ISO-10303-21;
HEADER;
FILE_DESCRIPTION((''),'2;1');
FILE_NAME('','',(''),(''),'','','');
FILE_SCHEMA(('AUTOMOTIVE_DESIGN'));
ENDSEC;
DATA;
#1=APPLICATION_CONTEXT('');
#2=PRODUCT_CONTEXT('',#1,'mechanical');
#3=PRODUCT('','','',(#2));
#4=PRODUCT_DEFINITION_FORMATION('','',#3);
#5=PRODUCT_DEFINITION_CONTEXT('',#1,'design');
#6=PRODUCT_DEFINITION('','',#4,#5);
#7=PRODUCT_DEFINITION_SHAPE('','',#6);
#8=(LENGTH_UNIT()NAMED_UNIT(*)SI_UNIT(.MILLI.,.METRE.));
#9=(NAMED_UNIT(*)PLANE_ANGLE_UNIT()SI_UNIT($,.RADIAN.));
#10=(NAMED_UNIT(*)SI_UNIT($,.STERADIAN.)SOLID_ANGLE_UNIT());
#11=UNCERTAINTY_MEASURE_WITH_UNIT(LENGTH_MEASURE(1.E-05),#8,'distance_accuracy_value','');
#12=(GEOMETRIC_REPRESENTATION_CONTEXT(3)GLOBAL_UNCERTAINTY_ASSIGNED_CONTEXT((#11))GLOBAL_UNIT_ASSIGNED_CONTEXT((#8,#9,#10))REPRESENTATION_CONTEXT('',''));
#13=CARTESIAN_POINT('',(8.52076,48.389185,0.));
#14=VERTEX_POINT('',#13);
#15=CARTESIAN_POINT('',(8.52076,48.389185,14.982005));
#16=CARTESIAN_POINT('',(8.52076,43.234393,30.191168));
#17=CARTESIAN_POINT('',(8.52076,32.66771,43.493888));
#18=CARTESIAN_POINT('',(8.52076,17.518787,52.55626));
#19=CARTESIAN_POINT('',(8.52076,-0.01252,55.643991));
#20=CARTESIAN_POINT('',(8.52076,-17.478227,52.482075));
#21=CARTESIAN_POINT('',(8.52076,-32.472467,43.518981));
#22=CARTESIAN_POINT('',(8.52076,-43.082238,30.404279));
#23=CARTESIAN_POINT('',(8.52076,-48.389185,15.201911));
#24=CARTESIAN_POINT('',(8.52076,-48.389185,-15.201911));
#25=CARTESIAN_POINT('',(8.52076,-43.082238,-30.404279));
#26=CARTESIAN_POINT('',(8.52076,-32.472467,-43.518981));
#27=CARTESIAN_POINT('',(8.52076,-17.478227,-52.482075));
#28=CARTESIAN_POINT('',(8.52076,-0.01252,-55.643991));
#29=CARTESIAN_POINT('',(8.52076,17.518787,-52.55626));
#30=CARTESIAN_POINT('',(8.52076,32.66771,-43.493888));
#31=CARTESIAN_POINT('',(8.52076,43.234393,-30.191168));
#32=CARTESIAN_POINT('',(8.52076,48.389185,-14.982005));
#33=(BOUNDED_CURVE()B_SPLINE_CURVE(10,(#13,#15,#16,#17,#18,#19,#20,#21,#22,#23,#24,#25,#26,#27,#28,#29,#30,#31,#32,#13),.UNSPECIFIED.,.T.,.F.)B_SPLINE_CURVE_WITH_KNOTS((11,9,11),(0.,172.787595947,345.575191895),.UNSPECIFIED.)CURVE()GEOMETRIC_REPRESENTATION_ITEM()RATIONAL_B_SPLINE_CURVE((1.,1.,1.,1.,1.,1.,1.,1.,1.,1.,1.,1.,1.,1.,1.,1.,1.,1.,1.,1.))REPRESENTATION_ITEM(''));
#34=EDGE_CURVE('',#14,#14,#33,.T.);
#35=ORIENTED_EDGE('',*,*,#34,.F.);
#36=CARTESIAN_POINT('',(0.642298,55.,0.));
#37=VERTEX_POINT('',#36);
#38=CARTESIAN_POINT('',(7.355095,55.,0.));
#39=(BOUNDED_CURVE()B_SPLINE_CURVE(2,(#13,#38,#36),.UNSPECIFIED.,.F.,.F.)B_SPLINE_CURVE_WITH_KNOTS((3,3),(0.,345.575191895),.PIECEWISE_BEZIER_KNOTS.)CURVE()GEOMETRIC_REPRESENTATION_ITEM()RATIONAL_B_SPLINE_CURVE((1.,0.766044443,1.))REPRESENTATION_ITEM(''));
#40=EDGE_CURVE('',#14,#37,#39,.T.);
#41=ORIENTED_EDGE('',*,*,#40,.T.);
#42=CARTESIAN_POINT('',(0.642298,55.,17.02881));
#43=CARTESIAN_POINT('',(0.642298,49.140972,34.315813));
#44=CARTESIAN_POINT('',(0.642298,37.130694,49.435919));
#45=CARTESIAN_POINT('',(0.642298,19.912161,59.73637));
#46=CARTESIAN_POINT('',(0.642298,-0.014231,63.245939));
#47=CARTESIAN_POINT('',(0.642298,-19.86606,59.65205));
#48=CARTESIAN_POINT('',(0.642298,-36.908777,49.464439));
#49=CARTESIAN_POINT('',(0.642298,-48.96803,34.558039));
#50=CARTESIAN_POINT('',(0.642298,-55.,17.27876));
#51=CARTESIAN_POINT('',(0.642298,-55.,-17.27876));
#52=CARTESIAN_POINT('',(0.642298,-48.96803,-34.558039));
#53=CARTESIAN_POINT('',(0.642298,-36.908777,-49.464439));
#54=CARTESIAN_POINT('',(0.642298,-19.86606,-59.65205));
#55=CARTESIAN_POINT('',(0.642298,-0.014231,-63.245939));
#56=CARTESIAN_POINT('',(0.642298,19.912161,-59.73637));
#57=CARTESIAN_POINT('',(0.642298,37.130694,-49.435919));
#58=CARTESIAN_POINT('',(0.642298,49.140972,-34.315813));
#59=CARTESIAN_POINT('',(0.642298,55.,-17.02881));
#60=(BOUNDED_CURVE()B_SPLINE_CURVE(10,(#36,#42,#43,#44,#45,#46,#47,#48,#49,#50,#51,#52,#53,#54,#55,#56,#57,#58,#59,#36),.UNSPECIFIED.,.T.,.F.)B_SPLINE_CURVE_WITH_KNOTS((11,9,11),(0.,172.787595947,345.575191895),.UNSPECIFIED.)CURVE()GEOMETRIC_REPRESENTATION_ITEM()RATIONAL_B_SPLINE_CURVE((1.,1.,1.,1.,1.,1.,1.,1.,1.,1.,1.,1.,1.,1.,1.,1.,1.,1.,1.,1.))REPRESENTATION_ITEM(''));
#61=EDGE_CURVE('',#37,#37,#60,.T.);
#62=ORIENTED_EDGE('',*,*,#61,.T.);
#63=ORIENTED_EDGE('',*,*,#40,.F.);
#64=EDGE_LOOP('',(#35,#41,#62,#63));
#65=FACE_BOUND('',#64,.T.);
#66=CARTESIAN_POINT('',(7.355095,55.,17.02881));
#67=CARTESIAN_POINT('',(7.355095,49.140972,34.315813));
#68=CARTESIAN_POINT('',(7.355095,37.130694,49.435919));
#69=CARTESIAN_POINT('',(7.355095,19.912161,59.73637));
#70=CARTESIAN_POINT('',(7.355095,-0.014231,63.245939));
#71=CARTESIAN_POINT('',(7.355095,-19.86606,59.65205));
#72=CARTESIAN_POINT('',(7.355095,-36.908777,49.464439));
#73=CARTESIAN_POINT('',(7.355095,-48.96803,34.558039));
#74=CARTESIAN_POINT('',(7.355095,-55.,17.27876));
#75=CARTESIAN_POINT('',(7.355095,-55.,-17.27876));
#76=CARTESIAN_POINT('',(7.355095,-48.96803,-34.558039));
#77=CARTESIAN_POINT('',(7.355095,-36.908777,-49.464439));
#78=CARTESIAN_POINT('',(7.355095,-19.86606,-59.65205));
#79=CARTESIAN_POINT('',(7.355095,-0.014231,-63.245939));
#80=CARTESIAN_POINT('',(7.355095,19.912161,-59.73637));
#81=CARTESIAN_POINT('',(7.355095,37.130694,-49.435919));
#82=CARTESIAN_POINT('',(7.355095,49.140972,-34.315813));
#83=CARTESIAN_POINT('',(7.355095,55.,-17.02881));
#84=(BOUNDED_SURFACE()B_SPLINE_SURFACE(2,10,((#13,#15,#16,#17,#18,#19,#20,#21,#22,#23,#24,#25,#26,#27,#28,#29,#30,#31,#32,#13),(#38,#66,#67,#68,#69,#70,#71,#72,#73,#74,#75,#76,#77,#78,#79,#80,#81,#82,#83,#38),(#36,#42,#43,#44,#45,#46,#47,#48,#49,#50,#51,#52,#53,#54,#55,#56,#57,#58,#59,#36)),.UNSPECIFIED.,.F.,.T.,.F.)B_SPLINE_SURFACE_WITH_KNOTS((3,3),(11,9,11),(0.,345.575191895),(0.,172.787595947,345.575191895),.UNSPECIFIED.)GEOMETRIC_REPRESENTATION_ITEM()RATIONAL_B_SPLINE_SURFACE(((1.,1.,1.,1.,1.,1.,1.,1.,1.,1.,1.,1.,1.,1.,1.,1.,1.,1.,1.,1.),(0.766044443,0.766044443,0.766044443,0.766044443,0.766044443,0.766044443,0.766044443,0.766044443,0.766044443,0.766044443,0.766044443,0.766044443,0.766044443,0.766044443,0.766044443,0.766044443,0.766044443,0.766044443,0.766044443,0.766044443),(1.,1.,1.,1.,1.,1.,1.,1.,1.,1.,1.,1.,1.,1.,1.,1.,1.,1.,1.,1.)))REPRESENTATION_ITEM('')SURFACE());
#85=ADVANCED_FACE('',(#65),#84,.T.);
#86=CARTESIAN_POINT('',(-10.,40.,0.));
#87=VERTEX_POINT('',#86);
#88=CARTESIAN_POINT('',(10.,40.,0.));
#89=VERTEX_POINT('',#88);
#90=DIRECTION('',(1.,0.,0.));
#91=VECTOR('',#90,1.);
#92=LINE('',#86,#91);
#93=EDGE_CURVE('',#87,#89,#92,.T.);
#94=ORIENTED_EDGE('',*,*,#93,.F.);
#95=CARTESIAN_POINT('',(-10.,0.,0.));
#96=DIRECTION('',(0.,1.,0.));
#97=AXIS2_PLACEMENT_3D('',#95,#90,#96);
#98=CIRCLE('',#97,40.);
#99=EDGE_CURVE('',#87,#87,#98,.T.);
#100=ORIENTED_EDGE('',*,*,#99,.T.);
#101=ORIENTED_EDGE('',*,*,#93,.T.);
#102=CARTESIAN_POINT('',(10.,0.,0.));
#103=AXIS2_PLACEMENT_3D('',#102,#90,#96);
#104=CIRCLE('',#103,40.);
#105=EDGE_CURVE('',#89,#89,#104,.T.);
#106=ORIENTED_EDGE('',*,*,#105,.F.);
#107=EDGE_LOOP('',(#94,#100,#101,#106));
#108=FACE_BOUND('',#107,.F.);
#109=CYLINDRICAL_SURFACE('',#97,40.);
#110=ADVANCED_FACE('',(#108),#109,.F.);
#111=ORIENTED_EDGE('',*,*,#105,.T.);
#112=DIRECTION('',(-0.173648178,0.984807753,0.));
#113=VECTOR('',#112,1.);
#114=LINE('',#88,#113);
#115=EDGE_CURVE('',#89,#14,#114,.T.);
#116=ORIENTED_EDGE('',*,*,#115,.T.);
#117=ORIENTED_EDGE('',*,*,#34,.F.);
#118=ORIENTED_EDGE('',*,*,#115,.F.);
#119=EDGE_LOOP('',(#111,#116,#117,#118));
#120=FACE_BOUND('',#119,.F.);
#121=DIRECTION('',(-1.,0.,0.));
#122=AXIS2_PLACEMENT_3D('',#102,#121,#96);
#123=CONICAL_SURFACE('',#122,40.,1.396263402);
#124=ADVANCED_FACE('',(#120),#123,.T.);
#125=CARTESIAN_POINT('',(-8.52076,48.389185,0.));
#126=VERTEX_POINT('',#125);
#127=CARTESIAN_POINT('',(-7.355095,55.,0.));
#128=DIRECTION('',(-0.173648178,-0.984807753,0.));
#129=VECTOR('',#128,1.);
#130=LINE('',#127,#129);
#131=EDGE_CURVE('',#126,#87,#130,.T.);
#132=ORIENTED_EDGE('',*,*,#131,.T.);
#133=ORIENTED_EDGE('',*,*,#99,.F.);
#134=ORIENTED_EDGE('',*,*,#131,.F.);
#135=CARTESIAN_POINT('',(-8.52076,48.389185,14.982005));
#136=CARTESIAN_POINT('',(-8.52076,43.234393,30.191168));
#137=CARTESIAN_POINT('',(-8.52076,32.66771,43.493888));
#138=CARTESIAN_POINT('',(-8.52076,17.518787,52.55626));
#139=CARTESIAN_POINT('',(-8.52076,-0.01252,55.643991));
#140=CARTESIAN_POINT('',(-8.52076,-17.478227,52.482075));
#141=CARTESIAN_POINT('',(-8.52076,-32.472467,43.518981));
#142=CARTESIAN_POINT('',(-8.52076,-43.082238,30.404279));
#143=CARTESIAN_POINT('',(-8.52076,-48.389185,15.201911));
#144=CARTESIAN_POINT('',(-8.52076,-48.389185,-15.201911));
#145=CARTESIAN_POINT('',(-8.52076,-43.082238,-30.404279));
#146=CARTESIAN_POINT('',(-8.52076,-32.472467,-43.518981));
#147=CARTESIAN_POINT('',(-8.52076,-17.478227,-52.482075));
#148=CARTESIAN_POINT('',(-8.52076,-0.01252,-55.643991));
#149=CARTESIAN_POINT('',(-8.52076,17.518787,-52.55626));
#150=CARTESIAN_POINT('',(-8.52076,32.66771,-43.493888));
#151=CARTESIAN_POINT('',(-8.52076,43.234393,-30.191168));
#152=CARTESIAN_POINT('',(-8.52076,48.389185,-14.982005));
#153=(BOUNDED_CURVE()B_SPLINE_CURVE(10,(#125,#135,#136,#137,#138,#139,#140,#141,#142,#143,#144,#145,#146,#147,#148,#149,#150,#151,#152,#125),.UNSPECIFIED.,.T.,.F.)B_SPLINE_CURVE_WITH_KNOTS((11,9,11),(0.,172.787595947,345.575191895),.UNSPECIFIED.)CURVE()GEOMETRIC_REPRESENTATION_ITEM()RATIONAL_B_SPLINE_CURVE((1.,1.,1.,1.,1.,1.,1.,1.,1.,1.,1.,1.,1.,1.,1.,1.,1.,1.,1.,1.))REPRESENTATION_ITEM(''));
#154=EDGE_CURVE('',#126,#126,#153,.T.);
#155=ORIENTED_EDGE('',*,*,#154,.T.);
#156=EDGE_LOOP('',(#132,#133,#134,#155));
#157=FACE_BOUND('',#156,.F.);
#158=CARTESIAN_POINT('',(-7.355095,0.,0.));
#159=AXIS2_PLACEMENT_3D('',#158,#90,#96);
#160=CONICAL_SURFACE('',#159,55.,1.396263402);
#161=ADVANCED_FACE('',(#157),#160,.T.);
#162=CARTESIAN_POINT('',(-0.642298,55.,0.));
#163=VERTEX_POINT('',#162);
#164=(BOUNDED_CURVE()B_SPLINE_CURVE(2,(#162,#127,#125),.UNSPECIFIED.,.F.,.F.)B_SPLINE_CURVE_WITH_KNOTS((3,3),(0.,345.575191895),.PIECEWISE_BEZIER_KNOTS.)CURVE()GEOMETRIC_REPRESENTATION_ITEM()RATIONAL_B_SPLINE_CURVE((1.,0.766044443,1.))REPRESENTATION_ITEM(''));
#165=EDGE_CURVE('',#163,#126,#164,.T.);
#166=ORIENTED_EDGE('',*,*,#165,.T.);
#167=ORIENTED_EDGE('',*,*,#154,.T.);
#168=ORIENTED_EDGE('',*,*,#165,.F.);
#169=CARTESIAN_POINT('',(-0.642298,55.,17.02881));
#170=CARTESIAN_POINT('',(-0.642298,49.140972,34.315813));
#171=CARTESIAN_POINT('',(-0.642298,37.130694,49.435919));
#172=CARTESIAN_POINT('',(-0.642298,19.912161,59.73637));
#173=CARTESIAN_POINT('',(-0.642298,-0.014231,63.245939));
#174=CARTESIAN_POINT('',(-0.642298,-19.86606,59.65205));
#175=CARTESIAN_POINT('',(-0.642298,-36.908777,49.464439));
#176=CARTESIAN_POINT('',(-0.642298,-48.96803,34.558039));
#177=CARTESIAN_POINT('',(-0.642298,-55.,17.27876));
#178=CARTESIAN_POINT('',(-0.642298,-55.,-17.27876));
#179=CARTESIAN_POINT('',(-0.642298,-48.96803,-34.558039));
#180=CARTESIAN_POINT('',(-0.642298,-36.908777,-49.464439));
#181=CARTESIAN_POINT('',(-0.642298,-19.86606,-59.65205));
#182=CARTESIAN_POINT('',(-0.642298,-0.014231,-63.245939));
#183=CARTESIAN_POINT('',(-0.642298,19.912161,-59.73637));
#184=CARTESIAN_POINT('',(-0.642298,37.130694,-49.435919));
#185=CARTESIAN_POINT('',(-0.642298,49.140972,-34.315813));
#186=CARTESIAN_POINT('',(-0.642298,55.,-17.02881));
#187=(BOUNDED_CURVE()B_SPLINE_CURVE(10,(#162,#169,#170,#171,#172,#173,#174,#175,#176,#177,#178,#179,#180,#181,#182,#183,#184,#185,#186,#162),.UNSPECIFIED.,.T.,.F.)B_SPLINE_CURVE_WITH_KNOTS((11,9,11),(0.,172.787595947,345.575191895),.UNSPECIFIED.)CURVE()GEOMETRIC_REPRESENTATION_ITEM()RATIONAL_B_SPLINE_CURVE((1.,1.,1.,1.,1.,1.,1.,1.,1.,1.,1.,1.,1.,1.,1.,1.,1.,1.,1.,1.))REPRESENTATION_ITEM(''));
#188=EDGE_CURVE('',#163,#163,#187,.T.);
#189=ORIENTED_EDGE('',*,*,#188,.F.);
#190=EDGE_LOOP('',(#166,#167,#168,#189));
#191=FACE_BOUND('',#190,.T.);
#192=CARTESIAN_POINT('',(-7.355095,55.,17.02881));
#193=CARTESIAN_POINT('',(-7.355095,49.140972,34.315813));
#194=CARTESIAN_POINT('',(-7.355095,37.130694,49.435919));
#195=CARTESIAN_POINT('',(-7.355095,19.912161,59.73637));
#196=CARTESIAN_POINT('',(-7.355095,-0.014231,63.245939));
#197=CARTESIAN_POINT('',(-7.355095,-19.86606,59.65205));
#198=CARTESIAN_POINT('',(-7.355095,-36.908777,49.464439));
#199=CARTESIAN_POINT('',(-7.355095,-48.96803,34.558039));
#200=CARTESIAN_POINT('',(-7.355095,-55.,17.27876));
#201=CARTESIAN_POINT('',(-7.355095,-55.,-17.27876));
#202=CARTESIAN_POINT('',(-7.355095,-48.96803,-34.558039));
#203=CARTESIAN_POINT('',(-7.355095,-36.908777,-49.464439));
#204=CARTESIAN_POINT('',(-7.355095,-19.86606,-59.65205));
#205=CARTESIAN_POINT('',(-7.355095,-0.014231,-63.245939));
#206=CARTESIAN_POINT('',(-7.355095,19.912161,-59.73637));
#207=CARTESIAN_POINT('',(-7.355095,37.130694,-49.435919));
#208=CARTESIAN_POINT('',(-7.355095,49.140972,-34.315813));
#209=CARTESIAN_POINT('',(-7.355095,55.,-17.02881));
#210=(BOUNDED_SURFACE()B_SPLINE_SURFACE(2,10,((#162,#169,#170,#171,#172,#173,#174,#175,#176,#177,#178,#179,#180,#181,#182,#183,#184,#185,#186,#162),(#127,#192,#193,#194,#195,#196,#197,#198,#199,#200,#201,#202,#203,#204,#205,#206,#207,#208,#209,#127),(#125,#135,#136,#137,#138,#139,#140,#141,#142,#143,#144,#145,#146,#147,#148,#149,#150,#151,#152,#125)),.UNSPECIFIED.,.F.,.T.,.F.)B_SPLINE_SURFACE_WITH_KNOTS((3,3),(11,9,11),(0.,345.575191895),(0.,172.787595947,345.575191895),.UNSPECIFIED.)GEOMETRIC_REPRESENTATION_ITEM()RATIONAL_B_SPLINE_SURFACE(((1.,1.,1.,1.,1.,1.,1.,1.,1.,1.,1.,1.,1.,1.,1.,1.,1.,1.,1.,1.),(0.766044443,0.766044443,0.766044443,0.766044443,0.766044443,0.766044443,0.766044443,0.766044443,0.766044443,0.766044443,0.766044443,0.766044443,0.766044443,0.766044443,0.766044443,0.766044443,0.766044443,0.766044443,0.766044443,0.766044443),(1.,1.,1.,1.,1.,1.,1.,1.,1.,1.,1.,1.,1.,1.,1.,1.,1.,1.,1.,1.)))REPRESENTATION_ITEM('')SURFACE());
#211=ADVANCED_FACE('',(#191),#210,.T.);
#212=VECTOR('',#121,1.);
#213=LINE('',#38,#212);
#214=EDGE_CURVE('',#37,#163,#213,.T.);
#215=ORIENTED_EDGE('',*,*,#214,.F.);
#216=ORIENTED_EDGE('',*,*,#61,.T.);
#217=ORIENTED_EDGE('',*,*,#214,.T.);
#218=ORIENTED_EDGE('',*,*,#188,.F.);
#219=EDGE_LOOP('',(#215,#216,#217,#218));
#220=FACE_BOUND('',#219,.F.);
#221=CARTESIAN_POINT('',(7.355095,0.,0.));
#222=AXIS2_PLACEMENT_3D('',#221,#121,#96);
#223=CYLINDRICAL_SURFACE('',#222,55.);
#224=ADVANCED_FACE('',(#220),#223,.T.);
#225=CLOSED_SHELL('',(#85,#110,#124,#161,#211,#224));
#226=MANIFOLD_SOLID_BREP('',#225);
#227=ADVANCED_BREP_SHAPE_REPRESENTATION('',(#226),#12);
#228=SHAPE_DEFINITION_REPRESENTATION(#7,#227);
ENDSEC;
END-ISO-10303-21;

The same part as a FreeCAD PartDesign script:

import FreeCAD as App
import Part
import Sketcher

V = App.Vector
Q = App.Units.Quantity


def edges_at(feature, points):
    """Names of the edges that pass closest to the given points."""
    edges = feature.Shape.Edges
    near = lambda p: min(range(len(edges)), key=lambda i: edges[i].distToShape(Part.Vertex(*p))[0])
    return sorted({f"Edge{near(p) + 1}" for p in points})

doc = App.newDocument("Part")
body = doc.addObject("PartDesign::Body", "Body")

sketch1 = body.newObject("Sketcher::SketchObject", "Sketch")
sketch1.AttachmentSupport = (doc.getObject("XY_Plane"), [""])
sketch1.MapMode = "FlatFace"
sketch1.addGeometry([
    Part.LineSegment(V(-10, 40, 0), V(10, 40, 0)),
    Part.LineSegment(V(10, 40, 0), V(7, 55, 0)),
    Part.LineSegment(V(7, 55, 0), V(-7, 55, 0)),
    Part.LineSegment(V(-7, 55, 0), V(-10, 40, 0)),
], False)
sketch1.addConstraint([
    Sketcher.Constraint("Coincident", 0, 2, 1, 1),
    Sketcher.Constraint("Coincident", 1, 2, 2, 1),
    Sketcher.Constraint("Coincident", 2, 2, 3, 1),
    Sketcher.Constraint("Coincident", 3, 2, 0, 1),
    Sketcher.Constraint("Horizontal", 0),
    Sketcher.Constraint("Horizontal", 2),
    Sketcher.Constraint("Equal", 1, 3),
    Sketcher.Constraint("DistanceX", 0, 1, 0, 2, 20.0),
    Sketcher.Constraint("Angle", 1, Q("100 deg")),
    Sketcher.Constraint("DistanceX", -1, 1, 0, 2, 10.0),
    Sketcher.Constraint("DistanceY", -1, 1, 0, 2, 40.0),
    Sketcher.Constraint("DistanceY", -1, 1, 1, 2, 55.0),
])
revolution = body.newObject("PartDesign::Revolution", "Revolution")
revolution.Profile = sketch1
revolution.ReferenceAxis = (sketch1, ["H_Axis"])
revolution.Angle = 360
doc.recompute()

fillet = body.newObject("PartDesign::Fillet", "Fillet")
fillet.Base = (revolution, edges_at(revolution, [(7.355, -55, 0)]))
fillet.Radius = 8
doc.recompute()

fillet2 = body.newObject("PartDesign::Fillet", "Fillet001")
fillet2.Base = (fillet, edges_at(fillet, [(-7.355, -55, 0)]))
fillet2.Radius = 8

doc.recompute()
